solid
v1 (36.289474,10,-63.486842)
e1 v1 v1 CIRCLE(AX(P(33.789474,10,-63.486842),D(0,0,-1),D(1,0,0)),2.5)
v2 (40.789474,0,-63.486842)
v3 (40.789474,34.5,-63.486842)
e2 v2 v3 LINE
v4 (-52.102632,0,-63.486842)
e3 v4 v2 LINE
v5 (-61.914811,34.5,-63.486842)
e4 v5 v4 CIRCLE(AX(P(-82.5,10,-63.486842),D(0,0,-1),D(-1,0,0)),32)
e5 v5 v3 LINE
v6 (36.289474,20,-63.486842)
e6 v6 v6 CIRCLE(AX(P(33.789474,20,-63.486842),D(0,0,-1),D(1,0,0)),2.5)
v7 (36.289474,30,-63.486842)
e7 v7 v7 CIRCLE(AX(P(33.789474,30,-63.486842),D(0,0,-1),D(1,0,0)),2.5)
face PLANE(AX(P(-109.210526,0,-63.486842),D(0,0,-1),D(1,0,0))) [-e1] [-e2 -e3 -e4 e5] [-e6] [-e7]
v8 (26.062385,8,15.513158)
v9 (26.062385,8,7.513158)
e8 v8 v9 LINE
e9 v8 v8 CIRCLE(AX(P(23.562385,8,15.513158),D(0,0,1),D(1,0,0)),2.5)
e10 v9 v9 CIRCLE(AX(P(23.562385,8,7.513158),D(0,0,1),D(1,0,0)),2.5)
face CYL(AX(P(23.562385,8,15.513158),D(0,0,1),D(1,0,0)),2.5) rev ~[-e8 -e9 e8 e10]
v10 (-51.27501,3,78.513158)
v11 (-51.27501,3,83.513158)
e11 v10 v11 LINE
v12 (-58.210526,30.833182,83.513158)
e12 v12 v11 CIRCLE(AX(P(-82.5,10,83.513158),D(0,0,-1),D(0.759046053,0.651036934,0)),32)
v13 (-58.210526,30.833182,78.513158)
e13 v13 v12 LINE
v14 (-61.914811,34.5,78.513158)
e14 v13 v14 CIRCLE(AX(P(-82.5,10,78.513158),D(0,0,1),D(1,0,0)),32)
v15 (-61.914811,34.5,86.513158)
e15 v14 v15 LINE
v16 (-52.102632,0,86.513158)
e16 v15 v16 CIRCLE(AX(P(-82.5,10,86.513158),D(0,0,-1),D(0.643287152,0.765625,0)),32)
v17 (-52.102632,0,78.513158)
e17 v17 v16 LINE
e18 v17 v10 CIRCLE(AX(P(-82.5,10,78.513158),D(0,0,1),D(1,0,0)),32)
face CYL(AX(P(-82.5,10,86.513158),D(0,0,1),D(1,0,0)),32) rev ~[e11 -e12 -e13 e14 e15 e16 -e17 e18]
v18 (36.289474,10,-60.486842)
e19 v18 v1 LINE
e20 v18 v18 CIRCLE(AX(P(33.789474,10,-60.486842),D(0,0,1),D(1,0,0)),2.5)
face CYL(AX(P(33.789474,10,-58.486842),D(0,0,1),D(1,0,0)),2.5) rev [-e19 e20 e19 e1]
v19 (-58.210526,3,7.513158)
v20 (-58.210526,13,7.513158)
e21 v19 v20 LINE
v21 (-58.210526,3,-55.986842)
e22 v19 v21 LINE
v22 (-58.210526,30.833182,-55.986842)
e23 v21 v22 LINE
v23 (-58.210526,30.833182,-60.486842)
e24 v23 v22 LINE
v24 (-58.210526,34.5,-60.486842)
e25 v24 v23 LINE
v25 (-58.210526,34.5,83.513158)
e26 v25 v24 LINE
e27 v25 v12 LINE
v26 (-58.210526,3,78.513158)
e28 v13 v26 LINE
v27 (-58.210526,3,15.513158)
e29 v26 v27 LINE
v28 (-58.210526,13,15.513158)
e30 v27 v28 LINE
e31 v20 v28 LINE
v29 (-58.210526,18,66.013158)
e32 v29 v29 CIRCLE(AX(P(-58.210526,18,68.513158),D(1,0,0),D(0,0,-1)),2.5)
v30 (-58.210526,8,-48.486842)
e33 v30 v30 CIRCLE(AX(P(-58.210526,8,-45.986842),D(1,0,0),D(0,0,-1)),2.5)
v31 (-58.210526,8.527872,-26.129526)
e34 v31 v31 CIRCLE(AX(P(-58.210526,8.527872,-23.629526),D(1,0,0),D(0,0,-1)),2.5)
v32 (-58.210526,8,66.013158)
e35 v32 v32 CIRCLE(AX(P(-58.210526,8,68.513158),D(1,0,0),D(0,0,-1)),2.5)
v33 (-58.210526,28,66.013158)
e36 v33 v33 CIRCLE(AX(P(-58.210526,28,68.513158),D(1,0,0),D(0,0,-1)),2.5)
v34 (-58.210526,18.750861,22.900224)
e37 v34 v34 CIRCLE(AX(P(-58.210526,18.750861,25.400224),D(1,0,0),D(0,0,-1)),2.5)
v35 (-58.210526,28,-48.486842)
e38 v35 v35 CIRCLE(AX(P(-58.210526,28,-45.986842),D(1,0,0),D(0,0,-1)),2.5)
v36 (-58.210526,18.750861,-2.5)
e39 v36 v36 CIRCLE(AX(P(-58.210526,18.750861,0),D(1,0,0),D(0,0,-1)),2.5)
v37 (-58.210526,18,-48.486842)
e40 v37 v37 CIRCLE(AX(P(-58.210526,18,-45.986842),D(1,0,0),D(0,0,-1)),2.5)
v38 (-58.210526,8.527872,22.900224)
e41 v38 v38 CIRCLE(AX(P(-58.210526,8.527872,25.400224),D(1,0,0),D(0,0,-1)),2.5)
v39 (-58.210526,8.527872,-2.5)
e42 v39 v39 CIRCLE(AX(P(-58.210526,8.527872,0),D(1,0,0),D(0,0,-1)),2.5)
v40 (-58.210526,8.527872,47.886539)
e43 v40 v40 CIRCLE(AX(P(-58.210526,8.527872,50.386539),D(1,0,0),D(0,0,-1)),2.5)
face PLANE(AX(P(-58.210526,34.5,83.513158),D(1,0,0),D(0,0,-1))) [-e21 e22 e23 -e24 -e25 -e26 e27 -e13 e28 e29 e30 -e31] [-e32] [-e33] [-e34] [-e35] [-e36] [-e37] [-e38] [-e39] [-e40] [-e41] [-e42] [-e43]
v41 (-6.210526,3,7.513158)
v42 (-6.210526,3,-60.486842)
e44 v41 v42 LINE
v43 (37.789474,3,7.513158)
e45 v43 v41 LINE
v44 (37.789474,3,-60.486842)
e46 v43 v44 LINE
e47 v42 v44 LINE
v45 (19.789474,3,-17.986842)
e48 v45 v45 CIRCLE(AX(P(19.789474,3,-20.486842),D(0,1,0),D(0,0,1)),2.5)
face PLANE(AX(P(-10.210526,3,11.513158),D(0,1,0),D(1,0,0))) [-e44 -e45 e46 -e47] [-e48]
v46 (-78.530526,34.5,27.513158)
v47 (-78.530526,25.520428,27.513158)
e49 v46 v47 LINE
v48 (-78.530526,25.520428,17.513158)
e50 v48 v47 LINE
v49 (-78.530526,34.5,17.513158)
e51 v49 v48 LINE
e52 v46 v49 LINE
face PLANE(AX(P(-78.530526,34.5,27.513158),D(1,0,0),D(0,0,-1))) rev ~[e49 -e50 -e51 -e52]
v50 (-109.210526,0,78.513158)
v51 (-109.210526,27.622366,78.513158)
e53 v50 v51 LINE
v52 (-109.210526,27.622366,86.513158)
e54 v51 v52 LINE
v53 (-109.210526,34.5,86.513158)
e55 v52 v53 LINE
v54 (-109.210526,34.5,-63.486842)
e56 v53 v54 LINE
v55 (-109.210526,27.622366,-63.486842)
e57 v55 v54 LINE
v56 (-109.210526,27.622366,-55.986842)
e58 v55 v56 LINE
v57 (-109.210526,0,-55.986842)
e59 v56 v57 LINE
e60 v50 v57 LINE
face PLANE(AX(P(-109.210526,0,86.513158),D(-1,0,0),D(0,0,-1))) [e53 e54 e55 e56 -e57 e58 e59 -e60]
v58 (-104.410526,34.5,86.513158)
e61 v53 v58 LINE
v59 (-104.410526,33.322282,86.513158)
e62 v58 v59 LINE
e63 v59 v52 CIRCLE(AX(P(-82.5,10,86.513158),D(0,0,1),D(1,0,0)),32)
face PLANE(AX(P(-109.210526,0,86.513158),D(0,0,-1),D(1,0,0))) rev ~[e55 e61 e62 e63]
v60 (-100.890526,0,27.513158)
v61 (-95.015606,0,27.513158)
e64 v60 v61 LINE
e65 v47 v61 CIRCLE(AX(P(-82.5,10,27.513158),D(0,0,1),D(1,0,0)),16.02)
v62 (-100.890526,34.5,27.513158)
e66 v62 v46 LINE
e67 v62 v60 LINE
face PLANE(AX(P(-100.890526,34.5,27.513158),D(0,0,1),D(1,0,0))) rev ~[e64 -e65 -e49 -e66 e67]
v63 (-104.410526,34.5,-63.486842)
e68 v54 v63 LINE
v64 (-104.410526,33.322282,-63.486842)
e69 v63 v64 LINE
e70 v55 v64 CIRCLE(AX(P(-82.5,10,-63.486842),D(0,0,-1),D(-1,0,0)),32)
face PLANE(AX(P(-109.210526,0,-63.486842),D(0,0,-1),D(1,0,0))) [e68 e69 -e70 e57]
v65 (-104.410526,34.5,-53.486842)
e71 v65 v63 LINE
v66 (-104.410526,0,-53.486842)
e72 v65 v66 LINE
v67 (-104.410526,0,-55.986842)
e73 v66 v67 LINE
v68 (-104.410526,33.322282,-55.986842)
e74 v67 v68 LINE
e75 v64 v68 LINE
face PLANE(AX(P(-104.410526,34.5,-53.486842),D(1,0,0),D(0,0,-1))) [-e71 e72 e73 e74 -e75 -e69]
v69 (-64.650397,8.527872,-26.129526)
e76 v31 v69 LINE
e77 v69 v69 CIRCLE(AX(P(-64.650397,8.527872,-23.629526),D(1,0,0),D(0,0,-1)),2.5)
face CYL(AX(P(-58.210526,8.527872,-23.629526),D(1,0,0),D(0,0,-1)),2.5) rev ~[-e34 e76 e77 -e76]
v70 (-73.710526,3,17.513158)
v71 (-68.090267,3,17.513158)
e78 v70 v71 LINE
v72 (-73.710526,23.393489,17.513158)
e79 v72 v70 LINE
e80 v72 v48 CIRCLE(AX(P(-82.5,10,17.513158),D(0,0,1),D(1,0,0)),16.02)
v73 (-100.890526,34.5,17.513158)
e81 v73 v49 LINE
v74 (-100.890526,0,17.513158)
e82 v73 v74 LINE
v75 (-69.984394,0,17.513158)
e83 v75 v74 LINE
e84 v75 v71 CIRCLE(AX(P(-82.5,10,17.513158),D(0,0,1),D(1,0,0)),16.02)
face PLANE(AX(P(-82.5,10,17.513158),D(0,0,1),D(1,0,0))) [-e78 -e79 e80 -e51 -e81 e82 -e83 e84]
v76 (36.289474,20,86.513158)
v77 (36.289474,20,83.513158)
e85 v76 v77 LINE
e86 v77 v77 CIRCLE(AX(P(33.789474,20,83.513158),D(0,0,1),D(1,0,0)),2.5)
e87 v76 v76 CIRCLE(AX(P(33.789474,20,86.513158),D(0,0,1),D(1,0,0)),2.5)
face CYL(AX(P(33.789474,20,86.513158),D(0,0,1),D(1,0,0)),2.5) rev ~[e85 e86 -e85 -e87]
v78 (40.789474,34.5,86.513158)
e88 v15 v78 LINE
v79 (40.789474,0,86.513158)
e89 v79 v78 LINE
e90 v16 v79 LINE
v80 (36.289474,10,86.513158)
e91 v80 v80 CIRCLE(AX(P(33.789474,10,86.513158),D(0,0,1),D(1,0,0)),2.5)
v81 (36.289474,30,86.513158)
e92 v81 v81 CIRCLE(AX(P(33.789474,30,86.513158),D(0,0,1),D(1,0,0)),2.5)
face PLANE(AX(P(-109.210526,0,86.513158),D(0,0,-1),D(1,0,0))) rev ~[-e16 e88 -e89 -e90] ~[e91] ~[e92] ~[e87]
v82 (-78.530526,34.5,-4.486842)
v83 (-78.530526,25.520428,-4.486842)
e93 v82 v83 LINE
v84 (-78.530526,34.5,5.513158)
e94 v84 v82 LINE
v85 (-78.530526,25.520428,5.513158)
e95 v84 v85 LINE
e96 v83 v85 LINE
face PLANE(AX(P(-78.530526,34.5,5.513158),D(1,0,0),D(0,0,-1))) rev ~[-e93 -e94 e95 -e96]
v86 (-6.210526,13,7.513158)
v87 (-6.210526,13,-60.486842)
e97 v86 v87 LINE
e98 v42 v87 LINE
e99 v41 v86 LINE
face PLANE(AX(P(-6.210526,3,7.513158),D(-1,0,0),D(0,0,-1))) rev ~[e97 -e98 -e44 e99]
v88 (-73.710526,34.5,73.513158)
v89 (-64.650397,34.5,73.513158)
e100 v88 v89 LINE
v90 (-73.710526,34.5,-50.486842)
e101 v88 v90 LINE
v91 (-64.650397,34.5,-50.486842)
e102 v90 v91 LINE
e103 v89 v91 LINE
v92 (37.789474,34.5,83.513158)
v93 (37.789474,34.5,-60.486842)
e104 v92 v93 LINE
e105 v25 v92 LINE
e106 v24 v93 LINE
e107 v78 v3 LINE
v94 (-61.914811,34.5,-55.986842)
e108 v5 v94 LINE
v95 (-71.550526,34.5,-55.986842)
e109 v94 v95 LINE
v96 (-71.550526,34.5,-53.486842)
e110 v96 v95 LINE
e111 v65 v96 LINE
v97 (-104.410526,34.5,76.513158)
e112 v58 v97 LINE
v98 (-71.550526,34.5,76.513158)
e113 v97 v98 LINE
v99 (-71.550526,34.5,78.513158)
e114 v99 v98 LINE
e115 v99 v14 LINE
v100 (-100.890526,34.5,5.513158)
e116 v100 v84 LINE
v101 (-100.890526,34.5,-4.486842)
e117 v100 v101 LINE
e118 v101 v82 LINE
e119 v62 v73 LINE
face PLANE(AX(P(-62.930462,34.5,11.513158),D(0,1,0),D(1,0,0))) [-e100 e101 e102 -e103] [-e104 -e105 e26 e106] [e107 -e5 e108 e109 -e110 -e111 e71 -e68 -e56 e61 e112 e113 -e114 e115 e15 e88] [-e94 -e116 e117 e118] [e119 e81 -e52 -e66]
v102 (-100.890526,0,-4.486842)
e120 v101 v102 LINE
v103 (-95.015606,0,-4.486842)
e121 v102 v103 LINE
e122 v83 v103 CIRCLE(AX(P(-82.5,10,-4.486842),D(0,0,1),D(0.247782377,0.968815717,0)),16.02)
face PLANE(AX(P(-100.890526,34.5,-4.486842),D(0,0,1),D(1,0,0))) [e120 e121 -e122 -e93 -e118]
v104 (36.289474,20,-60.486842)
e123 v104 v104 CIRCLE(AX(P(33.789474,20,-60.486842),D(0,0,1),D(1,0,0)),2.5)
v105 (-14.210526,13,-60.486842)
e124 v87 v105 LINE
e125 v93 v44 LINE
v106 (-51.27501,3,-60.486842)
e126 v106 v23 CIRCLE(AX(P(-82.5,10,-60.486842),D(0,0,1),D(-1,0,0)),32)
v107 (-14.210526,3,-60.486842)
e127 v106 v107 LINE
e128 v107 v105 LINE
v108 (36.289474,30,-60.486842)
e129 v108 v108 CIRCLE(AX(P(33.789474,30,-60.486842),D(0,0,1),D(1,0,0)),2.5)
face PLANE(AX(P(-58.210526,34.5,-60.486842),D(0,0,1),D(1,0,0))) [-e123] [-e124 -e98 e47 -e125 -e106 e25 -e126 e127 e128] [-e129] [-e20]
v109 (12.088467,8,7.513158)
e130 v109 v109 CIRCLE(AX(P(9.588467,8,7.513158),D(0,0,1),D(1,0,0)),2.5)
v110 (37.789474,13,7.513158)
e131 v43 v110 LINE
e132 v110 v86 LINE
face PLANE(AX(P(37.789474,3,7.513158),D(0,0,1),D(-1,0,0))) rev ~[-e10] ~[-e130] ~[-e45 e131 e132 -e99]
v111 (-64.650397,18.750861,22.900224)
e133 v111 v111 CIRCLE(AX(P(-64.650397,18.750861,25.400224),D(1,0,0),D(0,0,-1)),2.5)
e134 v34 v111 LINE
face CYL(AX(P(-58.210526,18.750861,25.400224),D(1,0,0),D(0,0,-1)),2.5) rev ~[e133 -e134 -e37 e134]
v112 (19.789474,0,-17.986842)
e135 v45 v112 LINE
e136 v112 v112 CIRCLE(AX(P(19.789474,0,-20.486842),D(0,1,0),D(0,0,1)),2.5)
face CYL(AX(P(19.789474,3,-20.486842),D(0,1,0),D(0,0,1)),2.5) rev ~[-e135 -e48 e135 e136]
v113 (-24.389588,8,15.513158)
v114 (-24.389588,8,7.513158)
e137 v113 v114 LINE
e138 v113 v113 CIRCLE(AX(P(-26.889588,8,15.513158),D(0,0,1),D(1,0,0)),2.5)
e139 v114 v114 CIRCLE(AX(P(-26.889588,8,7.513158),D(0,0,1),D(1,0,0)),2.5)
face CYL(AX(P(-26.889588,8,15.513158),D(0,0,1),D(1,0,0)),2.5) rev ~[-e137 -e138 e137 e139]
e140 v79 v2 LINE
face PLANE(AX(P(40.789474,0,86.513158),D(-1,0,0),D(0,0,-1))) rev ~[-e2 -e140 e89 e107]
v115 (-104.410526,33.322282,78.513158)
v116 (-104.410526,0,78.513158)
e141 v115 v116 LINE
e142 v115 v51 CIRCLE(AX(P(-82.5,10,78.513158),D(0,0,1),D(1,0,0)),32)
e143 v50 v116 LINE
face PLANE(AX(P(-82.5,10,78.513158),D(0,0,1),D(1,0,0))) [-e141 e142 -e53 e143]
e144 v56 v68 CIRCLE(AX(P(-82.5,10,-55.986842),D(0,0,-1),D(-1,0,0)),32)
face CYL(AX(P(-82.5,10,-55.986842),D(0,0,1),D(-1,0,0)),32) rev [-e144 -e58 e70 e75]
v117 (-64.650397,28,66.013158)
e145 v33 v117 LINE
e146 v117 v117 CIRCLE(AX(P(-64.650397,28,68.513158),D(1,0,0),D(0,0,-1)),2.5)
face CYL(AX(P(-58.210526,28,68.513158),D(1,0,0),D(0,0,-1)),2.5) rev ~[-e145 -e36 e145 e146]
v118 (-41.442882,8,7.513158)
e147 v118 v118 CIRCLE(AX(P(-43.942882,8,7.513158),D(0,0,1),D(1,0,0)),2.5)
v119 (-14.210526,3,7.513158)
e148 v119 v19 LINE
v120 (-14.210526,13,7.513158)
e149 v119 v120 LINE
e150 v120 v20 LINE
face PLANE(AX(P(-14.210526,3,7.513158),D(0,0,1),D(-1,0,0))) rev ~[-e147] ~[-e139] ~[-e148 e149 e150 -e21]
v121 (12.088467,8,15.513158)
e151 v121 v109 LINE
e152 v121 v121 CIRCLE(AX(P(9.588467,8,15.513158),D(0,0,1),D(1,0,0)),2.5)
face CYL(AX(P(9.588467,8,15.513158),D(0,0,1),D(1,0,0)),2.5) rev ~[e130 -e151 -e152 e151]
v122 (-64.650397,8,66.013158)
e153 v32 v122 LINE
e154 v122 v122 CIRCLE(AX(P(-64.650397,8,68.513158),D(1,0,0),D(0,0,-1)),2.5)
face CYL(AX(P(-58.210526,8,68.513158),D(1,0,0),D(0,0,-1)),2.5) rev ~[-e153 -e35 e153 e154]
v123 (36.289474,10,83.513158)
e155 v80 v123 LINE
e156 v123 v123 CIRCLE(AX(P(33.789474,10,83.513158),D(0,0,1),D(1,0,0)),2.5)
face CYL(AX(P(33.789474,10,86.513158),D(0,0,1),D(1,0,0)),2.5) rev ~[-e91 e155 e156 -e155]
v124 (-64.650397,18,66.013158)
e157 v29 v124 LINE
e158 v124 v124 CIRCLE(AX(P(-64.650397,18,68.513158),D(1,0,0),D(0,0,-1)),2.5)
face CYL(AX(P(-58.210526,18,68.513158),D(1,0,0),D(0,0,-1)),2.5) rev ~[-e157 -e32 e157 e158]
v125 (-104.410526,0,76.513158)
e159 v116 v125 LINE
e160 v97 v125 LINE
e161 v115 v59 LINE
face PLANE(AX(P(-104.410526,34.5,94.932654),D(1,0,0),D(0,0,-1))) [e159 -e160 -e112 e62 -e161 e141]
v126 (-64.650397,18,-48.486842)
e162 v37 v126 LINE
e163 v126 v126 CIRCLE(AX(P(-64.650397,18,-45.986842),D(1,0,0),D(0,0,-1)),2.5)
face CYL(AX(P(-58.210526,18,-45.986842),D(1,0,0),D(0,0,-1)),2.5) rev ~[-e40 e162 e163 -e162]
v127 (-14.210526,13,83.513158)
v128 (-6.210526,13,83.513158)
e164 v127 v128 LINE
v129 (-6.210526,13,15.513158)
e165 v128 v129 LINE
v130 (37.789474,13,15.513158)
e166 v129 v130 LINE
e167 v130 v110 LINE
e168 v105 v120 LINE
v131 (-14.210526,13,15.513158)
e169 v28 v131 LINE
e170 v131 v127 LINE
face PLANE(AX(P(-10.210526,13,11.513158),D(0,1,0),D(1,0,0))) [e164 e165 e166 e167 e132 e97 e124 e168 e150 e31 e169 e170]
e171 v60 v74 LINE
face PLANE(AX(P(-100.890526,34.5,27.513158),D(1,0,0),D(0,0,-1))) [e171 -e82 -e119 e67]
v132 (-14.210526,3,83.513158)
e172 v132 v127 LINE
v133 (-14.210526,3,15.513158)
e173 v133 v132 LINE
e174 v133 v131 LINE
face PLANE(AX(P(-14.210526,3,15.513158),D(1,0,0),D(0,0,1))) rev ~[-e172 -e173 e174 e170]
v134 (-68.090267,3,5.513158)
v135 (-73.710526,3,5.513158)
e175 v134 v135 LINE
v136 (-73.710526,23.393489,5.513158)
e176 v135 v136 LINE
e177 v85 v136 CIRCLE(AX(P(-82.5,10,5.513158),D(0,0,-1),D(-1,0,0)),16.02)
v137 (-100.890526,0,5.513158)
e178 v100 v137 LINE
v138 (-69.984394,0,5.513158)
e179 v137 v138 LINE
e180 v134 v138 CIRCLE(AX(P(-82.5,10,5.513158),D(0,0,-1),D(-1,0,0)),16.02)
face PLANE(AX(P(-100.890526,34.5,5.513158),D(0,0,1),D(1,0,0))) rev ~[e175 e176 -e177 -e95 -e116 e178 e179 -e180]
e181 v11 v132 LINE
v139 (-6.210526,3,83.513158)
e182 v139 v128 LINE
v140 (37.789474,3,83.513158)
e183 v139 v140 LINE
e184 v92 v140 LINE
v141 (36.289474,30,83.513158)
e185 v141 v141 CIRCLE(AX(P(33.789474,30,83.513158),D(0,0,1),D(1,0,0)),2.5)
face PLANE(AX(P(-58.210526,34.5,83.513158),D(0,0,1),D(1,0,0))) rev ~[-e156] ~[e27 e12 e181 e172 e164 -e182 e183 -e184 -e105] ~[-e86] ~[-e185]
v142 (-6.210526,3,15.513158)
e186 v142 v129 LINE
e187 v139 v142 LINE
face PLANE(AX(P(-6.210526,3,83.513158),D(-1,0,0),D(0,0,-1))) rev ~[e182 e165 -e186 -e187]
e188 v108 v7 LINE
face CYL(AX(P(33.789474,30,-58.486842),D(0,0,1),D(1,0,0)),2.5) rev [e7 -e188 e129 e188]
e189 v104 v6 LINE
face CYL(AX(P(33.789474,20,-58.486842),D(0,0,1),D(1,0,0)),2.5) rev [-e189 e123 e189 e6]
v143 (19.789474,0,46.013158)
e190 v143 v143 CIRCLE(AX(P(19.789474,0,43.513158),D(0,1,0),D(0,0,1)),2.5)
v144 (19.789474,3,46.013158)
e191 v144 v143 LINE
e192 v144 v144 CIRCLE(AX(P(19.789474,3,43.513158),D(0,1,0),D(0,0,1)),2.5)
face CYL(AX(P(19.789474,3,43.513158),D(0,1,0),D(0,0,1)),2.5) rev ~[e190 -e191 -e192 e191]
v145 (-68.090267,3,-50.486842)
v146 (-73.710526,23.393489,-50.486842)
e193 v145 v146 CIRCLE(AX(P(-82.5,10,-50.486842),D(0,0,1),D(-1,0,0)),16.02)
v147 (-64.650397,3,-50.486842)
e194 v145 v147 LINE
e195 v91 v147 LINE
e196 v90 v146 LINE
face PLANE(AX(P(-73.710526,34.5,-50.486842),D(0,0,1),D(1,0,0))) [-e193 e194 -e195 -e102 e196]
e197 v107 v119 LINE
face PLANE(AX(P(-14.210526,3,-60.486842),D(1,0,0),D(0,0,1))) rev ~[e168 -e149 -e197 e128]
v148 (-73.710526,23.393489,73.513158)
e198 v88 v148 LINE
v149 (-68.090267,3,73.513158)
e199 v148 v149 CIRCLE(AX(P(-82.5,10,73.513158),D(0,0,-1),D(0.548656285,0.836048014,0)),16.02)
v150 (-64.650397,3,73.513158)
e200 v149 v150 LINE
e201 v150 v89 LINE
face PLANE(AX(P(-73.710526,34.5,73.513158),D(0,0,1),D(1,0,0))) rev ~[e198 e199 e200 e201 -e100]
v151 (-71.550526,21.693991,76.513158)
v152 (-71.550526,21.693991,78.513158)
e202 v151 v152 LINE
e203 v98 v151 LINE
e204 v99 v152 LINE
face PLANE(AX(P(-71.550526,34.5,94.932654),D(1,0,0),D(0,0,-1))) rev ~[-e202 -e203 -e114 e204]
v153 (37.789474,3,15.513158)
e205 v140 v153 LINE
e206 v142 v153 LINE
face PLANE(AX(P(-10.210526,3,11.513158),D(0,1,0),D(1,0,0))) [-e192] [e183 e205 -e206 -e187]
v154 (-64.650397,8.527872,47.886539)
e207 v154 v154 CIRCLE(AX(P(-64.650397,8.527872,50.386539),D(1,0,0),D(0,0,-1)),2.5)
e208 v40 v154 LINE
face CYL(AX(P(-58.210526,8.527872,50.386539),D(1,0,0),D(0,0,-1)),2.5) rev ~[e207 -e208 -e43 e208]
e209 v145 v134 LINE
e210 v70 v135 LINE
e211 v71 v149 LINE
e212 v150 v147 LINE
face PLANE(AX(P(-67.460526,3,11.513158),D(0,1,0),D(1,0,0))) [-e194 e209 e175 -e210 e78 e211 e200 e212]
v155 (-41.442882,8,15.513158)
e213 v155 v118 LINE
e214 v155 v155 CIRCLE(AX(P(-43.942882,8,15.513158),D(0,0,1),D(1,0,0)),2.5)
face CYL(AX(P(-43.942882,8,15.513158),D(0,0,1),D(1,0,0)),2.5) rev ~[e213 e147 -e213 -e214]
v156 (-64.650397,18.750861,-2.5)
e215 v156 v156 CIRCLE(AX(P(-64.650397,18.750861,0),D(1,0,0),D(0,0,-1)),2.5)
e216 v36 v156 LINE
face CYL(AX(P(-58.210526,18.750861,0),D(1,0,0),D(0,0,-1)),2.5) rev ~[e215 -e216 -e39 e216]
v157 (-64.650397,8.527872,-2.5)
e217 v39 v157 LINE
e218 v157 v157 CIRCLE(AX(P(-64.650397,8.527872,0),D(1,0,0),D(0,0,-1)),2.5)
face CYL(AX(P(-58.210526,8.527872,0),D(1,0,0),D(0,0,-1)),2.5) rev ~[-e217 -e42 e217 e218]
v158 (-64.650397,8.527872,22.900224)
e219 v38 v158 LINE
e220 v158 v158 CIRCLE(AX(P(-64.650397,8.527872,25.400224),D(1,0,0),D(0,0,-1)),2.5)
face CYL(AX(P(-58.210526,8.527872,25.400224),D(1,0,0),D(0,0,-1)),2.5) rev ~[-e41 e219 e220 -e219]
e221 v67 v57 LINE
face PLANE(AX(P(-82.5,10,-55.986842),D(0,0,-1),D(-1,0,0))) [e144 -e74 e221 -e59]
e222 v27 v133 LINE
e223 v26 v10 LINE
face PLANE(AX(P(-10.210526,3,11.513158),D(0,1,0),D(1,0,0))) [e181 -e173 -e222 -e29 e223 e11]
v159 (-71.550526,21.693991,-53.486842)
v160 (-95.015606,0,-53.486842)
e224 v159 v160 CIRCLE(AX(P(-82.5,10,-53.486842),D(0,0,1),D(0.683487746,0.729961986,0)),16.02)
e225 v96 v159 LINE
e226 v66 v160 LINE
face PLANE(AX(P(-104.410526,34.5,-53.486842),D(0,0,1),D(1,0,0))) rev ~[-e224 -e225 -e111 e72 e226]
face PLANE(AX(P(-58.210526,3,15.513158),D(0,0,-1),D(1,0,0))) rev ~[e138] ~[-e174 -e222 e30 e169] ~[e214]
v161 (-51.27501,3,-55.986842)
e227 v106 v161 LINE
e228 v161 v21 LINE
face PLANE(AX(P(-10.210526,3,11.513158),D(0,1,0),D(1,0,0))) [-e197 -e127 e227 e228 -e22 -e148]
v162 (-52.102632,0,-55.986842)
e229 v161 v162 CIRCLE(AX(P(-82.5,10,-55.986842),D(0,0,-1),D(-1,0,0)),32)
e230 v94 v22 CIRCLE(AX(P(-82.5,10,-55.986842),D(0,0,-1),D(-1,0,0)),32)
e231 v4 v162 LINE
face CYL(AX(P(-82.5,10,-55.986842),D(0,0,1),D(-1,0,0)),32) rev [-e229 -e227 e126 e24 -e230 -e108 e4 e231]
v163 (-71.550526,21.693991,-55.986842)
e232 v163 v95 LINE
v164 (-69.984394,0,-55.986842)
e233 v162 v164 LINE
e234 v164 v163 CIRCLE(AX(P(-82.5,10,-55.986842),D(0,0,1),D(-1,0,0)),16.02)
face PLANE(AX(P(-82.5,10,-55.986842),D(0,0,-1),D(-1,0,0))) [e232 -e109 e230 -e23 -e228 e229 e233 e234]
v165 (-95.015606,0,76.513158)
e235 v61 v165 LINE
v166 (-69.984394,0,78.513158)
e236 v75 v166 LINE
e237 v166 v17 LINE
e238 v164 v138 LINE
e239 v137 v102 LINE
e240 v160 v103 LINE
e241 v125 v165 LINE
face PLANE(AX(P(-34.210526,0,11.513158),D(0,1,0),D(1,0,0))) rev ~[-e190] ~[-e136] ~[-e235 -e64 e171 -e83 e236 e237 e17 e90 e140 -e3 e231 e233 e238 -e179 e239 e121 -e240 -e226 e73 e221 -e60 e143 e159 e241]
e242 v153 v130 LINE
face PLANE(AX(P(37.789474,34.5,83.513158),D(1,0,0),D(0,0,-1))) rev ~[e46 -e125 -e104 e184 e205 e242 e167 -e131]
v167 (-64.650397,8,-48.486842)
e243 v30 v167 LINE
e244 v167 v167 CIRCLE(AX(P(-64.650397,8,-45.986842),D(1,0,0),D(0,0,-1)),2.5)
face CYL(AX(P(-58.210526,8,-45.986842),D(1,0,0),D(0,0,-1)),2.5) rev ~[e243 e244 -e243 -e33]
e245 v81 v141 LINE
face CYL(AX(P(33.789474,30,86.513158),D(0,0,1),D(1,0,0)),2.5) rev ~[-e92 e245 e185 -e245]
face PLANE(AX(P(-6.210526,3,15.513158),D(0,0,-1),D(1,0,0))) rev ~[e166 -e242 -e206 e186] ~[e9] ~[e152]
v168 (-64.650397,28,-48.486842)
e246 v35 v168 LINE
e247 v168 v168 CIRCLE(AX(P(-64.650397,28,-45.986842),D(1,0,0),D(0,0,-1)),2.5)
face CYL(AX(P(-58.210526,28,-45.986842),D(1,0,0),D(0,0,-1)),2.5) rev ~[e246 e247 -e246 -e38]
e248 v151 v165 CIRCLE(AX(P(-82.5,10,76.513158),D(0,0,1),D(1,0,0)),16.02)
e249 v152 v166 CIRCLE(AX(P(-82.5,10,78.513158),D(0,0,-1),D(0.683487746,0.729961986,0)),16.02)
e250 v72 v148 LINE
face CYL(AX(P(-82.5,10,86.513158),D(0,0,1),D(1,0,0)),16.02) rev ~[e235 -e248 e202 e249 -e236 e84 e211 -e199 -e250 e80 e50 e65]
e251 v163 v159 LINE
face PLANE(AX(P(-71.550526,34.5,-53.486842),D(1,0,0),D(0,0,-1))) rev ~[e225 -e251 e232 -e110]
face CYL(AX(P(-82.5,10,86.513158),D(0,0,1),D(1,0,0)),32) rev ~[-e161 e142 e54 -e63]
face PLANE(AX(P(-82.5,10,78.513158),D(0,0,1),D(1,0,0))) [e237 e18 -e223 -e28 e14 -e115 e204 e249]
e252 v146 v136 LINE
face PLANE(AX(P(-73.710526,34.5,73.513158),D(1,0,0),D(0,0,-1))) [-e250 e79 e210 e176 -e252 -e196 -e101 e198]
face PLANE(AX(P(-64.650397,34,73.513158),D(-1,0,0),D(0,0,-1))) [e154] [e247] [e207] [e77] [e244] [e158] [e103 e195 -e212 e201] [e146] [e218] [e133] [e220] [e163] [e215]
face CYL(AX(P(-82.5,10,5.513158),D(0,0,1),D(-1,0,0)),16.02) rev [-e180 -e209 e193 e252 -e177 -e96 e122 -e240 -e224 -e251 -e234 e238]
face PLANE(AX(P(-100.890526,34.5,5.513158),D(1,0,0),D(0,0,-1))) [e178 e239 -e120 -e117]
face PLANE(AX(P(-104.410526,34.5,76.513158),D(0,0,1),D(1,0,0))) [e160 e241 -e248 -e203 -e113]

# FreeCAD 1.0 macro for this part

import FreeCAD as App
import Part
import Sketcher

V = App.Vector

doc = App.newDocument("Part")
body = doc.addObject("PartDesign::Body", "Body")

sketch1 = body.newObject("Sketcher::SketchObject", "Sketch")
sketch1.AttachmentSupport = (doc.getObject("XZ_Plane"), [""])
sketch1.MapMode = "FlatFace"
sketch1.addGeometry([
    Part.LineSegment(V(-109, -63, 0), V(-109, 87, 0)),
    Part.LineSegment(V(-109, 87, 0), V(41, 87, 0)),
    Part.LineSegment(V(41, 87, 0), V(41, -63, 0)),
    Part.LineSegment(V(41, -63, 0), V(-109, -63, 0)),
], False)
sketch1.addConstraint([
    Sketcher.Constraint("Coincident", 0, 2, 1, 1),
    Sketcher.Constraint("Coincident", 1, 2, 2, 1),
    Sketcher.Constraint("Coincident", 2, 2, 3, 1),
    Sketcher.Constraint("Coincident", 3, 2, 0, 1),
    Sketcher.Constraint("Vertical", 0),
    Sketcher.Constraint("Horizontal", 1),
    Sketcher.Constraint("Vertical", 2),
    Sketcher.Constraint("Horizontal", 3),
    Sketcher.Constraint("Equal", 3, 0),
    Sketcher.Constraint("DistanceX", 1, 1, 1, 2, 150.0),
    Sketcher.Constraint("DistanceX", 0, 2, -1, 1, 109.210526),
    Sketcher.Constraint("DistanceY", -1, 1, 0, 2, 86.513158),
])
pad1 = body.newObject("PartDesign::Pad", "Pad")
pad1.Profile = sketch1
pad1.Length = 34.5
pad1.Reversed = True

sketch2 = body.newObject("Sketcher::SketchObject", "Sketch001")
sketch2.AttachmentSupport = (doc.getObject("XZ_Plane"), [""])
sketch2.MapMode = "FlatFace"
sketch2.AttachmentOffset = App.Placement(V(0, 0, -34.5), App.Rotation())
sketch2.addGeometry([
    Part.LineSegment(V(-58, -60, 0), V(-58, 84, 0)),
    Part.LineSegment(V(-58, 84, 0), V(38, 84, 0)),
    Part.LineSegment(V(38, 84, 0), V(38, -60, 0)),
    Part.LineSegment(V(38, -60, 0), V(-58, -60, 0)),
], False)
sketch2.addConstraint([
    Sketcher.Constraint("Coincident", 0, 2, 1, 1),
    Sketcher.Constraint("Coincident", 1, 2, 2, 1),
    Sketcher.Constraint("Coincident", 2, 2, 3, 1),
    Sketcher.Constraint("Coincident", 3, 2, 0, 1),
    Sketcher.Constraint("Vertical", 0),
    Sketcher.Constraint("Horizontal", 1),
    Sketcher.Constraint("Vertical", 2),
    Sketcher.Constraint("Horizontal", 3),
    Sketcher.Constraint("DistanceX", 1, 1, 1, 2, 96.0),
    Sketcher.Constraint("DistanceY", 0, 1, 0, 2, 144.0),
    Sketcher.Constraint("DistanceX", 0, 2, -1, 1, 58.210526),
    Sketcher.Constraint("DistanceY", -1, 1, 0, 2, 83.513158),
])
pocket1 = body.newObject("PartDesign::Pocket", "Pocket")
pocket1.Profile = sketch2
pocket1.Length = 31.5
pocket1.Reversed = True

sketch3 = body.newObject("Sketcher::SketchObject", "Sketch002")
sketch3.AttachmentSupport = (doc.getObject("XY_Plane"), [""])
sketch3.MapMode = "FlatFace"
sketch3.AttachmentOffset = App.Placement(V(0, 0, 86.513158), App.Rotation())
sketch3.addGeometry([
    Part.Circle(V(33.8, 10, 0), V(0, 0, 1), 2.5),
    Part.Circle(V(33.8, 20, 0), V(0, 0, 1), 2.5),
    Part.Circle(V(33.8, 30, 0), V(0, 0, 1), 2.5),
], False)
sketch3.addConstraint([
    Sketcher.Constraint("Equal", 0, 1),
    Sketcher.Constraint("Equal", 1, 2),
    Sketcher.Constraint("Vertical", 0, 3, 1, 3),
    Sketcher.Constraint("Vertical", 1, 3, 2, 3),
    Sketcher.Constraint("Diameter", 0, 5.0),
    Sketcher.Constraint("DistanceY", -1, 1, 0, 3, 10.0),
    Sketcher.Constraint("DistanceY", -1, 1, 1, 3, 20.0),
    Sketcher.Constraint("DistanceY", -1, 1, 2, 3, 30.0),
    Sketcher.Constraint("DistanceX", -1, 1, 0, 3, 33.789474),
])
pocket2 = body.newObject("PartDesign::Pocket", "Pocket001")
pocket2.Profile = sketch3
pocket2.Length = 5

sketch4 = body.newObject("Sketcher::SketchObject", "Sketch003")
sketch4.AttachmentSupport = (doc.getObject("XY_Plane"), [""])
sketch4.MapMode = "FlatFace"
sketch4.AttachmentOffset = App.Placement(V(0, 0, -58.486842), App.Rotation())
sketch4.addGeometry([
    Part.Circle(V(33.8, 10, 0), V(0, 0, 1), 2.5),
    Part.Circle(V(33.8, 20, 0), V(0, 0, 1), 2.5),
    Part.Circle(V(33.8, 30, 0), V(0, 0, 1), 2.5),
], False)
sketch4.addConstraint([
    Sketcher.Constraint("Equal", 0, 1),
    Sketcher.Constraint("Equal", 1, 2),
    Sketcher.Constraint("Vertical", 0, 3, 1, 3),
    Sketcher.Constraint("Vertical", 1, 3, 2, 3),
    Sketcher.Constraint("Diameter", 0, 5.0),
    Sketcher.Constraint("DistanceY", -1, 1, 0, 3, 10.0),
    Sketcher.Constraint("DistanceY", -1, 1, 1, 3, 20.0),
    Sketcher.Constraint("DistanceY", -1, 1, 2, 3, 30.0),
    Sketcher.Constraint("DistanceX", -1, 1, 0, 3, 33.789474),
])
pocket3 = body.newObject("PartDesign::Pocket", "Pocket002")
pocket3.Profile = sketch4
pocket3.Length = 5

sketch5 = body.newObject("Sketcher::SketchObject", "Sketch004")
sketch5.AttachmentSupport = (doc.getObject("XZ_Plane"), [""])
sketch5.MapMode = "FlatFace"
sketch5.AttachmentOffset = App.Placement(V(0, 0, -34.5), App.Rotation())
sketch5.addGeometry([
    Part.LineSegment(V(-74, -50, 0), V(-74, 74, 0)),
    Part.LineSegment(V(-74, 74, 0), V(-61, 74, 0)),
    Part.LineSegment(V(-61, 74, 0), V(-61, -50, 0)),
    Part.LineSegment(V(-61, -50, 0), V(-74, -50, 0)),
], False)
sketch5.addConstraint([
    Sketcher.Constraint("Coincident", 0, 2, 1, 1),
    Sketcher.Constraint("Coincident", 1, 2, 2, 1),
    Sketcher.Constraint("Coincident", 2, 2, 3, 1),
    Sketcher.Constraint("Coincident", 3, 2, 0, 1),
    Sketcher.Constraint("Vertical", 0),
    Sketcher.Constraint("Horizontal", 1),
    Sketcher.Constraint("Vertical", 2),
    Sketcher.Constraint("Horizontal", 3),
    Sketcher.Constraint("DistanceY", 0, 1, 0, 2, 124.0),
    Sketcher.Constraint("DistanceX", 1, 1, 1, 2, 12.5),
    Sketcher.Constraint("DistanceX", 0, 2, -1, 1, 73.710526),
    Sketcher.Constraint("DistanceY", -1, 1, 0, 2, 73.513158),
])
pocket4 = body.newObject("PartDesign::Pocket", "Pocket003")
pocket4.Profile = sketch5
pocket4.Length = 31.5
pocket4.Reversed = True

sketch6 = body.newObject("Sketcher::SketchObject", "Sketch005")
sketch6.AttachmentSupport = (doc.getObject("XZ_Plane"), [""])
sketch6.MapMode = "FlatFace"
sketch6.AttachmentOffset = App.Placement(V(0, 0, -34.5), App.Rotation())
sketch6.addGeometry([
    Part.LineSegment(V(-104, -69, 0), V(-104, -53, 0)),
    Part.LineSegment(V(-104, -53, 0), V(-72, -53, 0)),
    Part.LineSegment(V(-72, -53, 0), V(-72, -69, 0)),
    Part.LineSegment(V(-72, -69, 0), V(-104, -69, 0)),
    Part.LineSegment(V(-104, 77, 0), V(-104, 95, 0)),
    Part.LineSegment(V(-104, 95, 0), V(-72, 95, 0)),
    Part.LineSegment(V(-72, 95, 0), V(-72, 77, 0)),
    Part.LineSegment(V(-72, 77, 0), V(-104, 77, 0)),
], False)
sketch6.addConstraint([
    Sketcher.Constraint("Coincident", 0, 2, 1, 1),
    Sketcher.Constraint("Coincident", 1, 2, 2, 1),
    Sketcher.Constraint("Coincident", 2, 2, 3, 1),
    Sketcher.Constraint("Coincident", 3, 2, 0, 1),
    Sketcher.Constraint("Coincident", 4, 2, 5, 1),
    Sketcher.Constraint("Coincident", 5, 2, 6, 1),
    Sketcher.Constraint("Coincident", 6, 2, 7, 1),
    Sketcher.Constraint("Coincident", 7, 2, 4, 1),
    Sketcher.Constraint("Vertical", 0),
    Sketcher.Constraint("Horizontal", 1),
    Sketcher.Constraint("Vertical", 2),
    Sketcher.Constraint("Horizontal", 3),
    Sketcher.Constraint("Vertical", 4),
    Sketcher.Constraint("Horizontal", 5),
    Sketcher.Constraint("Vertical", 6),
    Sketcher.Constraint("Horizontal", 7),
    Sketcher.Constraint("Vertical", 3, 2, 4, 2),
    Sketcher.Constraint("Vertical", 2, 2, 5, 2),
    Sketcher.Constraint("DistanceY", 1, 2, 6, 2, 130.0),
    Sketcher.Constraint("DistanceX", 1, 1, 1, 2, 32.86),
    Sketcher.Constraint("DistanceY", 0, 1, 0, 2, 15.696676),
    Sketcher.Constraint("DistanceY", 4, 1, 4, 2, 18.419496),
    Sketcher.Constraint("DistanceY", 2, 2, -1, 1, 69.183519),
    Sketcher.Constraint("DistanceX", 0, 2, -1, 1, 104.410526),
])
pocket5 = body.newObject("PartDesign::Pocket", "Pocket004")
pocket5.Profile = sketch6
pocket5.Length = 36
pocket5.Reversed = True

sketch7 = body.newObject("Sketcher::SketchObject", "Sketch006")
sketch7.AttachmentSupport = (doc.getObject("XZ_Plane"), [""])
sketch7.MapMode = "FlatFace"
sketch7.AttachmentOffset = App.Placement(V(0, 0, -34.5), App.Rotation())
sketch7.addGeometry([
    Part.LineSegment(V(-101, -4, 0), V(-101, 6, 0)),
    Part.LineSegment(V(-101, 6, 0), V(-79, 6, 0)),
    Part.LineSegment(V(-79, 6, 0), V(-79, -4, 0)),
    Part.LineSegment(V(-79, -4, 0), V(-101, -4, 0)),
    Part.LineSegment(V(-101, 18, 0), V(-101, 28, 0)),
    Part.LineSegment(V(-101, 28, 0), V(-79, 28, 0)),
    Part.LineSegment(V(-79, 28, 0), V(-79, 18, 0)),
    Part.LineSegment(V(-79, 18, 0), V(-101, 18, 0)),
], False)
sketch7.addConstraint([
    Sketcher.Constraint("Coincident", 0, 2, 1, 1),
    Sketcher.Constraint("Coincident", 1, 2, 2, 1),
    Sketcher.Constraint("Coincident", 2, 2, 3, 1),
    Sketcher.Constraint("Coincident", 3, 2, 0, 1),
    Sketcher.Constraint("Coincident", 4, 2, 5, 1),
    Sketcher.Constraint("Coincident", 5, 2, 6, 1),
    Sketcher.Constraint("Coincident", 6, 2, 7, 1),
    Sketcher.Constraint("Coincident", 7, 2, 4, 1),
    Sketcher.Constraint("Vertical", 0),
    Sketcher.Constraint("Horizontal", 1),
    Sketcher.Constraint("Vertical", 2),
    Sketcher.Constraint("Horizontal", 3),
    Sketcher.Constraint("Vertical", 4),
    Sketcher.Constraint("Horizontal", 5),
    Sketcher.Constraint("Vertical", 6),
    Sketcher.Constraint("Horizontal", 7),
    Sketcher.Constraint("Vertical", 3, 2, 4, 2),
    Sketcher.Constraint("Vertical", 2, 2, 5, 2),
    Sketcher.Constraint("Equal", 2, 4),
    Sketcher.Constraint("DistanceY", 0, 1, 0, 2, 10.0),
    Sketcher.Constraint("DistanceY", 0, 2, 4, 2, 22.0),
    Sketcher.Constraint("DistanceX", 1, 1, 1, 2, 22.36),
    Sketcher.Constraint("DistanceX", 0, 2, -1, 1, 100.890526),
    Sketcher.Constraint("DistanceY", -1, 1, 0, 2, 5.513158),
])
pocket6 = body.newObject("PartDesign::Pocket", "Pocket005")
pocket6.Profile = sketch7
pocket6.Length = 36
pocket6.Reversed = True

sketch8 = body.newObject("Sketcher::SketchObject", "Sketch007")
sketch8.AttachmentSupport = (doc.getObject("XY_Plane"), [""])
sketch8.MapMode = "FlatFace"
sketch8.AttachmentOffset = App.Placement(V(0, 0, 86.513158), App.Rotation())
sketch8.addGeometry(Part.Circle(V(-82, 10, 0), V(0, 0, 1), 32), False)
sketch8.addConstraint([
    Sketcher.Constraint("Diameter", 0, 64.0),
    Sketcher.Constraint("DistanceY", -1, 1, 0, 3, 10.0),
    Sketcher.Constraint("DistanceX", 0, 3, -1, 1, 82.5),
])
pocket7 = body.newObject("PartDesign::Pocket", "Pocket006")
pocket7.Profile = sketch8
pocket7.Length = 8

sketch9 = body.newObject("Sketcher::SketchObject", "Sketch008")
sketch9.AttachmentSupport = (doc.getObject("XY_Plane"), [""])
sketch9.MapMode = "FlatFace"
sketch9.AttachmentOffset = App.Placement(V(0, 0, 86.513158), App.Rotation())
sketch9.addGeometry(Part.Circle(V(-82, 10, 0), V(0, 0, 1), 16), False)
sketch9.addConstraint([
    Sketcher.Constraint("Diameter", 0, 32.04),
    Sketcher.Constraint("DistanceY", -1, 1, 0, 3, 10.0),
    Sketcher.Constraint("DistanceX", 0, 3, -1, 1, 82.5),
])
pocket8 = body.newObject("PartDesign::Pocket", "Pocket007")
pocket8.Profile = sketch9
pocket8.Length = 69

sketch10 = body.newObject("Sketcher::SketchObject", "Sketch009")
sketch10.AttachmentSupport = (doc.getObject("XY_Plane"), [""])
sketch10.MapMode = "FlatFace"
sketch10.AttachmentOffset = App.Placement(V(0, 0, -55.986842), App.Rotation())
sketch10.addGeometry(Part.Circle(V(-82, 10, 0), V(0, 0, 1), 32), False)
sketch10.addConstraint([
    Sketcher.Constraint("Diameter", 0, 64.0),
    Sketcher.Constraint("DistanceY", -1, 1, 0, 3, 10.0),
    Sketcher.Constraint("DistanceX", 0, 3, -1, 1, 82.5),
])
pocket9 = body.newObject("PartDesign::Pocket", "Pocket008")
pocket9.Profile = sketch10
pocket9.Length = 7.5

sketch11 = body.newObject("Sketcher::SketchObject", "Sketch010")
sketch11.AttachmentSupport = (doc.getObject("XY_Plane"), [""])
sketch11.MapMode = "FlatFace"
sketch11.AttachmentOffset = App.Placement(V(0, 0, 5.513158), App.Rotation())
sketch11.addGeometry(Part.Circle(V(-82, 10, 0), V(0, 0, 1), 16), False)
sketch11.addConstraint([
    Sketcher.Constraint("Diameter", 0, 32.04),
    Sketcher.Constraint("DistanceY", -1, 1, 0, 3, 10.0),
    Sketcher.Constraint("DistanceX", 0, 3, -1, 1, 82.5),
])
pocket10 = body.newObject("PartDesign::Pocket", "Pocket009")
pocket10.Profile = sketch11
pocket10.Length = 69

sketch12 = body.newObject("Sketcher::SketchObject", "Sketch011")
sketch12.AttachmentSupport = (doc.getObject("YZ_Plane"), [""])
sketch12.MapMode = "FlatFace"
sketch12.AttachmentOffset = App.Placement(V(0, 0, -58.210526), App.Rotation())
sketch12.addGeometry([
    Part.Circle(V(8, 68.5, 0), V(0, 0, 1), 2.5),
    Part.Circle(V(18, 68.5, 0), V(0, 0, 1), 2.5),
    Part.Circle(V(28, 68.5, 0), V(0, 0, 1), 2.5),
    Part.Circle(V(8, -46, 0), V(0, 0, 1), 2.5),
    Part.Circle(V(18, -46, 0), V(0, 0, 1), 2.5),
    Part.Circle(V(28, -46, 0), V(0, 0, 1), 2.5),
], False)
sketch12.addConstraint([
    Sketcher.Constraint("Equal", 0, 1),
    Sketcher.Constraint("Equal", 1, 2),
    Sketcher.Constraint("Equal", 2, 3),
    Sketcher.Constraint("Equal", 3, 4),
    Sketcher.Constraint("Equal", 4, 5),
    Sketcher.Constraint("Horizontal", 0, 3, 1, 3),
    Sketcher.Constraint("Horizontal", 1, 3, 2, 3),
    Sketcher.Constraint("Horizontal", 3, 3, 4, 3),
    Sketcher.Constraint("Horizontal", 4, 3, 5, 3),
    Sketcher.Constraint("Vertical", 0, 3, 3, 3),
    Sketcher.Constraint("Vertical", 1, 3, 4, 3),
    Sketcher.Constraint("Vertical", 2, 3, 5, 3),
    Sketcher.Constraint("Diameter", 0, 5.0),
    Sketcher.Constraint("DistanceX", -1, 1, 0, 3, 8.0),
    Sketcher.Constraint("DistanceX", -1, 1, 1, 3, 18.0),
    Sketcher.Constraint("DistanceX", -1, 1, 2, 3, 28.0),
    Sketcher.Constraint("DistanceY", 3, 3, 0, 3, 114.5),
    Sketcher.Constraint("DistanceY", -1, 1, 0, 3, 68.513158),
])
pocket11 = body.newObject("PartDesign::Pocket", "Pocket010")
pocket11.Profile = sketch12
pocket11.Length = 10

sketch13 = body.newObject("Sketcher::SketchObject", "Sketch012")
sketch13.AttachmentSupport = (doc.getObject("XZ_Plane"), [""])
sketch13.MapMode = "FlatFace"
sketch13.AttachmentOffset = App.Placement(V(0, 0, -3), App.Rotation())
sketch13.addGeometry([
    Part.LineSegment(V(-58, 16, 0), V(-14, 16, 0)),
    Part.LineSegment(V(-14, 16, 0), V(-14, 84, 0)),
    Part.LineSegment(V(-14, 84, 0), V(-6, 84, 0)),
    Part.LineSegment(V(-6, 84, 0), V(-6, 16, 0)),
    Part.LineSegment(V(-6, 16, 0), V(38, 16, 0)),
    Part.LineSegment(V(38, 16, 0), V(38, 8, 0)),
    Part.LineSegment(V(38, 8, 0), V(-6, 8, 0)),
    Part.LineSegment(V(-6, 8, 0), V(-6, -60, 0)),
    Part.LineSegment(V(-6, -60, 0), V(-14, -60, 0)),
    Part.LineSegment(V(-14, -60, 0), V(-14, 8, 0)),
    Part.LineSegment(V(-14, 8, 0), V(-58, 8, 0)),
    Part.LineSegment(V(-58, 8, 0), V(-58, 16, 0)),
], False)
sketch13.addConstraint([
    Sketcher.Constraint("Coincident", 0, 2, 1, 1),
    Sketcher.Constraint("Coincident", 1, 2, 2, 1),
    Sketcher.Constraint("Coincident", 2, 2, 3, 1),
    Sketcher.Constraint("Coincident", 3, 2, 4, 1),
    Sketcher.Constraint("Coincident", 4, 2, 5, 1),
    Sketcher.Constraint("Coincident", 5, 2, 6, 1),
    Sketcher.Constraint("Coincident", 6, 2, 7, 1),
    Sketcher.Constraint("Coincident", 7, 2, 8, 1),
    Sketcher.Constraint("Coincident", 8, 2, 9, 1),
    Sketcher.Constraint("Coincident", 9, 2, 10, 1),
    Sketcher.Constraint("Coincident", 10, 2, 11, 1),
    Sketcher.Constraint("Coincident", 11, 2, 0, 1),
    Sketcher.Constraint("Horizontal", 0),
    Sketcher.Constraint("Vertical", 1),
    Sketcher.Constraint("Horizontal", 2),
    Sketcher.Constraint("Vertical", 3),
    Sketcher.Constraint("Horizontal", 4),
    Sketcher.Constraint("Vertical", 5),
    Sketcher.Constraint("Horizontal", 6),
    Sketcher.Constraint("Vertical", 7),
    Sketcher.Constraint("Horizontal", 8),
    Sketcher.Constraint("Vertical", 9),
    Sketcher.Constraint("Horizontal", 10),
    Sketcher.Constraint("Vertical", 11),
    Sketcher.Constraint("Horizontal", 0, 2, 3, 2),
    Sketcher.Constraint("Horizontal", 6, 2, 9, 2),
    Sketcher.Constraint("Vertical", 3, 2, 6, 2),
    Sketcher.Constraint("Vertical", 1, 2, 8, 2),
    Sketcher.Constraint("Equal", 0, 4),
    Sketcher.Constraint("Equal", 8, 5),
    Sketcher.Constraint("Equal", 3, 7),
    Sketcher.Constraint("DistanceX", 0, 1, 0, 2, 44.0),
    Sketcher.Constraint("DistanceX", 2, 1, 2, 2, 8.0),
    Sketcher.Constraint("DistanceY", 1, 1, 1, 2, 68.0),
    Sketcher.Constraint("DistanceX", 0, 2, -1, 1, 14.210526),
    Sketcher.Constraint("DistanceY", -1, 1, 0, 2, 15.513158),
])
pad2 = body.newObject("PartDesign::Pad", "Pad001")
pad2.Profile = sketch13
pad2.Length = 10
pad2.Reversed = True

sketch14 = body.newObject("Sketcher::SketchObject", "Sketch013")
sketch14.AttachmentSupport = (doc.getObject("XY_Plane"), [""])
sketch14.MapMode = "FlatFace"
sketch14.AttachmentOffset = App.Placement(V(0, 0, 15.513158), App.Rotation())
sketch14.addGeometry([
    Part.Circle(V(-43.9, 8, 0), V(0, 0, 1), 2.5),
    Part.Circle(V(-26.9, 8, 0), V(0, 0, 1), 2.5),
    Part.Circle(V(9.6, 8, 0), V(0, 0, 1), 2.5),
    Part.Circle(V(23.6, 8, 0), V(0, 0, 1), 2.5),
], False)
sketch14.addConstraint([
    Sketcher.Constraint("Equal", 0, 1),
    Sketcher.Constraint("Equal", 1, 2),
    Sketcher.Constraint("Equal", 2, 3),
    Sketcher.Constraint("Horizontal", 0, 3, 1, 3),
    Sketcher.Constraint("Horizontal", 1, 3, 2, 3),
    Sketcher.Constraint("Horizontal", 2, 3, 3, 3),
    Sketcher.Constraint("Diameter", 0, 5.0),
    Sketcher.Constraint("DistanceY", -1, 1, 0, 3, 8.0),
    Sketcher.Constraint("DistanceX", 0, 3, 2, 3, 53.531349),
    Sketcher.Constraint("DistanceX", 2, 3, 3, 3, 13.973919),
    Sketcher.Constraint("DistanceX", 0, 3, -1, 1, 43.942882),
    Sketcher.Constraint("DistanceX", 1, 3, -1, 1, 26.889588),
])
pocket12 = body.newObject("PartDesign::Pocket", "Pocket011")
pocket12.Profile = sketch14
pocket12.Length = 10

sketch15 = body.newObject("Sketcher::SketchObject", "Sketch014")
sketch15.AttachmentSupport = (doc.getObject("XZ_Plane"), [""])
sketch15.MapMode = "FlatFace"
sketch15.AttachmentOffset = App.Placement(V(0, 0, -3), App.Rotation())
sketch15.addGeometry([
    Part.LineSegment(V(-64.7, -50.5, 0), V(-64.7, 73.5, 0)),
    Part.LineSegment(V(-64.7, 73.5, 0), V(-61.2, 73.5, 0)),
    Part.LineSegment(V(-61.2, 73.5, 0), V(-61.2, -50.5, 0)),
    Part.LineSegment(V(-61.2, -50.5, 0), V(-64.7, -50.5, 0)),
], False)
sketch15.addConstraint([
    Sketcher.Constraint("Coincident", 0, 2, 1, 1),
    Sketcher.Constraint("Coincident", 1, 2, 2, 1),
    Sketcher.Constraint("Coincident", 2, 2, 3, 1),
    Sketcher.Constraint("Coincident", 3, 2, 0, 1),
    Sketcher.Constraint("Vertical", 0),
    Sketcher.Constraint("Horizontal", 1),
    Sketcher.Constraint("Vertical", 2),
    Sketcher.Constraint("Horizontal", 3),
    Sketcher.Constraint("DistanceY", 0, 1, 0, 2, 124.0),
    Sketcher.Constraint("DistanceX", 1, 1, 1, 2, 3.43987),
    Sketcher.Constraint("DistanceX", 0, 2, -1, 1, 64.650397),
    Sketcher.Constraint("DistanceY", -1, 1, 0, 2, 73.513158),
])
pad3 = body.newObject("PartDesign::Pad", "Pad002")
pad3.Profile = sketch15
pad3.Length = 31
pad3.Reversed = True

sketch16 = body.newObject("Sketcher::SketchObject", "Sketch015")
sketch16.AttachmentSupport = (doc.getObject("XZ_Plane"), [""])
sketch16.MapMode = "FlatFace"
sketch16.AttachmentOffset = App.Placement(V(0, 0, -34), App.Rotation())
sketch16.addGeometry([
    Part.LineSegment(V(-64.7, -50.5, 0), V(-64.7, 73.5, 0)),
    Part.LineSegment(V(-64.7, 73.5, 0), V(-61.2, 73.5, 0)),
    Part.LineSegment(V(-61.2, 73.5, 0), V(-61.2, -50.5, 0)),
    Part.LineSegment(V(-61.2, -50.5, 0), V(-64.7, -50.5, 0)),
], False)
sketch16.addConstraint([
    Sketcher.Constraint("Coincident", 0, 2, 1, 1),
    Sketcher.Constraint("Coincident", 1, 2, 2, 1),
    Sketcher.Constraint("Coincident", 2, 2, 3, 1),
    Sketcher.Constraint("Coincident", 3, 2, 0, 1),
    Sketcher.Constraint("Vertical", 0),
    Sketcher.Constraint("Horizontal", 1),
    Sketcher.Constraint("Vertical", 2),
    Sketcher.Constraint("Horizontal", 3),
    Sketcher.Constraint("DistanceY", 0, 1, 0, 2, 124.0),
    Sketcher.Constraint("DistanceX", 1, 1, 1, 2, 3.43987),
    Sketcher.Constraint("DistanceX", 0, 2, -1, 1, 64.650397),
    Sketcher.Constraint("DistanceY", -1, 1, 0, 2, 73.513158),
])
pad4 = body.newObject("PartDesign::Pad", "Pad003")
pad4.Profile = sketch16
pad4.Length = 0.5
pad4.Reversed = True

sketch17 = body.newObject("Sketcher::SketchObject", "Sketch016")
sketch17.AttachmentSupport = (doc.getObject("YZ_Plane"), [""])
sketch17.MapMode = "FlatFace"
sketch17.AttachmentOffset = App.Placement(V(0, 0, -58.210526), App.Rotation())
sketch17.addGeometry([
    Part.Circle(V(28, 68.5, 0), V(0, 0, 1), 2.5),
    Part.Circle(V(18, 68.5, 0), V(0, 0, 1), 2.5),
    Part.Circle(V(8, 68.5, 0), V(0, 0, 1), 2.5),
    Part.Circle(V(28, -46, 0), V(0, 0, 1), 2.5),
    Part.Circle(V(18, -46, 0), V(0, 0, 1), 2.5),
    Part.Circle(V(8, -46, 0), V(0, 0, 1), 2.5),
], False)
sketch17.addConstraint([
    Sketcher.Constraint("Equal", 0, 1),
    Sketcher.Constraint("Equal", 1, 2),
    Sketcher.Constraint("Equal", 2, 3),
    Sketcher.Constraint("Equal", 3, 4),
    Sketcher.Constraint("Equal", 4, 5),
    Sketcher.Constraint("Horizontal", 0, 3, 1, 3),
    Sketcher.Constraint("Horizontal", 1, 3, 2, 3),
    Sketcher.Constraint("Horizontal", 3, 3, 4, 3),
    Sketcher.Constraint("Horizontal", 4, 3, 5, 3),
    Sketcher.Constraint("Vertical", 0, 3, 3, 3),
    Sketcher.Constraint("Vertical", 1, 3, 4, 3),
    Sketcher.Constraint("Vertical", 2, 3, 5, 3),
    Sketcher.Constraint("Diameter", 0, 5.0),
    Sketcher.Constraint("DistanceX", -1, 1, 0, 3, 28.0),
    Sketcher.Constraint("DistanceX", -1, 1, 1, 3, 18.0),
    Sketcher.Constraint("DistanceX", -1, 1, 2, 3, 8.0),
    Sketcher.Constraint("DistanceY", 3, 3, 0, 3, 114.5),
    Sketcher.Constraint("DistanceY", -1, 1, 0, 3, 68.513158),
])
pocket13 = body.newObject("PartDesign::Pocket", "Pocket012")
pocket13.Profile = sketch17
pocket13.Length = 10

sketch18 = body.newObject("Sketcher::SketchObject", "Sketch017")
sketch18.AttachmentSupport = (doc.getObject("YZ_Plane"), [""])
sketch18.MapMode = "FlatFace"
sketch18.AttachmentOffset = App.Placement(V(0, 0, -58.210526), App.Rotation())
sketch18.addGeometry([
    Part.Circle(V(8.5, 0, 0), V(0, 0, 1), 2.5),
    Part.Circle(V(18.8, 0, 0), V(0, 0, 1), 2.5),
    Part.Circle(V(8.5, 25.4, 0), V(0, 0, 1), 2.5),
    Part.Circle(V(18.8, 25.4, 0), V(0, 0, 1), 2.5),
    Part.Circle(V(8.5, 50.4, 0), V(0, 0, 1), 2.5),
    Part.Circle(V(8.5, -23.6, 0), V(0, 0, 1), 2.5),
], False)
sketch18.addConstraint([
    Sketcher.Constraint("Equal", 0, 1),
    Sketcher.Constraint("Equal", 1, 2),
    Sketcher.Constraint("Equal", 2, 3),
    Sketcher.Constraint("Equal", 3, 4),
    Sketcher.Constraint("Equal", 4, 5),
    Sketcher.Constraint("PointOnObject", 0, 3, -1),
    Sketcher.Constraint("PointOnObject", 1, 3, -1),
    Sketcher.Constraint("Horizontal", 2, 3, 3, 3),
    Sketcher.Constraint("Vertical", 0, 3, 2, 3),
    Sketcher.Constraint("Vertical", 1, 3, 3, 3),
    Sketcher.Constraint("Vertical", 2, 3, 4, 3),
    Sketcher.Constraint("Vertical", 4, 3, 5, 3),
    Sketcher.Constraint("Diameter", 0, 5.0),
    Sketcher.Constraint("DistanceX", -1, 1, 0, 3, 8.527872),
    Sketcher.Constraint("DistanceX", -1, 1, 1, 3, 18.750861),
    Sketcher.Constraint("DistanceY", -1, 1, 4, 3, 50.386539),
    Sketcher.Constraint("DistanceY", 5, 3, 2, 3, 49.02975),
    Sketcher.Constraint("DistanceY", -1, 1, 2, 3, 25.400224),
])
pocket14 = body.newObject("PartDesign::Pocket", "Pocket013")
pocket14.Profile = sketch18
pocket14.Length = 10

sketch19 = body.newObject("Sketcher::SketchObject", "Sketch018")
sketch19.AttachmentSupport = (doc.getObject("XZ_Plane"), [""])
sketch19.MapMode = "FlatFace"
sketch19.AttachmentOffset = App.Placement(V(0, 0, -3), App.Rotation())
sketch19.addGeometry([
    Part.Circle(V(19.8, 43.5, 0), V(0, 0, 1), 2.5),
    Part.Circle(V(19.8, -20.5, 0), V(0, 0, 1), 2.5),
], False)
sketch19.addConstraint([
    Sketcher.Constraint("Equal", 0, 1),
    Sketcher.Constraint("Vertical", 0, 3, 1, 3),
    Sketcher.Constraint("Diameter", 0, 5.0),
    Sketcher.Constraint("DistanceY", 1, 3, 0, 3, 64.0),
    Sketcher.Constraint("DistanceX", -1, 1, 0, 3, 19.789474),
    Sketcher.Constraint("DistanceY", -1, 1, 0, 3, 43.513158),
])
pocket15 = body.newObject("PartDesign::Pocket", "Pocket014")
pocket15.Profile = sketch19
pocket15.Length = 10
pocket15.Reversed = True

doc.recompute()
